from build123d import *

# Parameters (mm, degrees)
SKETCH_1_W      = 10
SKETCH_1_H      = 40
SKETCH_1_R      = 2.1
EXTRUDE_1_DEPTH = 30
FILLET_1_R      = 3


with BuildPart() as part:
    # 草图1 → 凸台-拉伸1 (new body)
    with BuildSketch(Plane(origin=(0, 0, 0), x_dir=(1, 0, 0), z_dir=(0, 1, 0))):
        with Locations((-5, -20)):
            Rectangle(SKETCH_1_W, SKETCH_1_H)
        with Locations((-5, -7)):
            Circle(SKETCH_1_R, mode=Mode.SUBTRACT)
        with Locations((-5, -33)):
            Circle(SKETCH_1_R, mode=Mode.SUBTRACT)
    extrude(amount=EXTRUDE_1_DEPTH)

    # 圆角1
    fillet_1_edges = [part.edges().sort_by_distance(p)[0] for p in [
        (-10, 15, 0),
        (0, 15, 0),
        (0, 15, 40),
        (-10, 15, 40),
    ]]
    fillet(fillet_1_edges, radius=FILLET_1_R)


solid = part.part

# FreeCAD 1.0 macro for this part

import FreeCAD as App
import Part
import Sketcher
from FreeCAD import Vector


def edges_at(feature, points):
    """Names of the edges that pass closest to the given points."""
    edges = feature.Shape.Edges
    near = lambda p: min(range(len(edges)), key=lambda i: edges[i].distToShape(Part.Vertex(*p))[0])
    return sorted({f"Edge{near(p) + 1}" for p in points})


def add_polygon(sketch, points):
    """Adds a closed chain of lines whose ends are joined by coincident constraints."""
    first, n = sketch.GeometryCount, len(points)
    for a, b in zip(points, points[1:] + points[:1]):
        sketch.addGeometry(Part.LineSegment(App.Vector(*a, 0), App.Vector(*b, 0)), False)
    for i in range(n):
        sketch.addConstraint(Sketcher.Constraint("Coincident", first + i, 2, first + (i + 1) % n, 1))

doc = App.newDocument("Part")
params = doc.addObject("Spreadsheet::Sheet", "Params")
for row, (alias, value) in enumerate([
    ("sketch1_diameter", "4.2 mm"),
    ("sketch1_width", "10 mm"),
    ("sketch1_height", "40 mm"),
    ("pad1_length", "30 mm"),
    ("fillet_radius", "3 mm"),
], start=1):
    params.set(f"A{row}", alias)
    params.set(f"B{row}", "=" + value)
    params.setAlias(f"B{row}", alias)

body = doc.addObject("PartDesign::Body", "Body")

# Sketch on XZ plane
sketch1 = body.newObject("Sketcher::SketchObject", "Sketch")
sketch1.AttachmentSupport = (doc.getObject("XZ_Plane"), [""])
sketch1.MapMode = "FlatFace"
add_polygon(sketch1, [(-10, 0), (-10, 40), (0, 40), (0, 0)])  # lines 0-3
sketch1.addGeometry(Part.Circle(Vector(-5, 33, 0), Vector(0, 0, 1), 2.1), False)  # 4
sketch1.addGeometry(Part.Circle(Vector(-5, 7, 0), Vector(0, 0, 1), 2.1), False)  # 5
sketch1.addConstraint([
    Sketcher.Constraint("Vertical", 0),
    Sketcher.Constraint("Horizontal", 1),
    Sketcher.Constraint("Vertical", 2),
    Sketcher.Constraint("Horizontal", 3),
    Sketcher.Constraint("Coincident", 2, 2, -1, 1),
    Sketcher.Constraint("Equal", 4, 5),
    Sketcher.Constraint("Vertical", 4, 3, 5, 3),
    Sketcher.Constraint("Diameter", 4, 4.2),
    Sketcher.Constraint("DistanceX", 1, 1, 1, 2, 10.0),
    Sketcher.Constraint("DistanceY", 0, 1, 0, 2, 40.0),
    Sketcher.Constraint("DistanceX", 4, 3, -1, 1, 5.0),
    Sketcher.Constraint("DistanceY", -1, 1, 4, 3, 33.0),
    Sketcher.Constraint("DistanceY", -1, 1, 5, 3, 7.0),
])
sketch1.setExpression("Constraints[11]", "Params.sketch1_diameter")
sketch1.setExpression("Constraints[12]", "Params.sketch1_width")
sketch1.setExpression("Constraints[13]", "Params.sketch1_height")
pad1 = body.newObject("PartDesign::Pad", "Pad")
pad1.Profile = sketch1
pad1.setExpression("Length", "Params.pad1_length")
pad1.Reversed = True
doc.recompute()

fillet = body.newObject("PartDesign::Fillet", "Fillet")
fillet.Base = (pad1, edges_at(pad1, [
    (-10, 15, 0),
    (0, 15, 0),
    (0, 15, 40),
    (-10, 15, 40),
]))
fillet.setExpression("Radius", "Params.fillet_radius")

doc.recompute()
